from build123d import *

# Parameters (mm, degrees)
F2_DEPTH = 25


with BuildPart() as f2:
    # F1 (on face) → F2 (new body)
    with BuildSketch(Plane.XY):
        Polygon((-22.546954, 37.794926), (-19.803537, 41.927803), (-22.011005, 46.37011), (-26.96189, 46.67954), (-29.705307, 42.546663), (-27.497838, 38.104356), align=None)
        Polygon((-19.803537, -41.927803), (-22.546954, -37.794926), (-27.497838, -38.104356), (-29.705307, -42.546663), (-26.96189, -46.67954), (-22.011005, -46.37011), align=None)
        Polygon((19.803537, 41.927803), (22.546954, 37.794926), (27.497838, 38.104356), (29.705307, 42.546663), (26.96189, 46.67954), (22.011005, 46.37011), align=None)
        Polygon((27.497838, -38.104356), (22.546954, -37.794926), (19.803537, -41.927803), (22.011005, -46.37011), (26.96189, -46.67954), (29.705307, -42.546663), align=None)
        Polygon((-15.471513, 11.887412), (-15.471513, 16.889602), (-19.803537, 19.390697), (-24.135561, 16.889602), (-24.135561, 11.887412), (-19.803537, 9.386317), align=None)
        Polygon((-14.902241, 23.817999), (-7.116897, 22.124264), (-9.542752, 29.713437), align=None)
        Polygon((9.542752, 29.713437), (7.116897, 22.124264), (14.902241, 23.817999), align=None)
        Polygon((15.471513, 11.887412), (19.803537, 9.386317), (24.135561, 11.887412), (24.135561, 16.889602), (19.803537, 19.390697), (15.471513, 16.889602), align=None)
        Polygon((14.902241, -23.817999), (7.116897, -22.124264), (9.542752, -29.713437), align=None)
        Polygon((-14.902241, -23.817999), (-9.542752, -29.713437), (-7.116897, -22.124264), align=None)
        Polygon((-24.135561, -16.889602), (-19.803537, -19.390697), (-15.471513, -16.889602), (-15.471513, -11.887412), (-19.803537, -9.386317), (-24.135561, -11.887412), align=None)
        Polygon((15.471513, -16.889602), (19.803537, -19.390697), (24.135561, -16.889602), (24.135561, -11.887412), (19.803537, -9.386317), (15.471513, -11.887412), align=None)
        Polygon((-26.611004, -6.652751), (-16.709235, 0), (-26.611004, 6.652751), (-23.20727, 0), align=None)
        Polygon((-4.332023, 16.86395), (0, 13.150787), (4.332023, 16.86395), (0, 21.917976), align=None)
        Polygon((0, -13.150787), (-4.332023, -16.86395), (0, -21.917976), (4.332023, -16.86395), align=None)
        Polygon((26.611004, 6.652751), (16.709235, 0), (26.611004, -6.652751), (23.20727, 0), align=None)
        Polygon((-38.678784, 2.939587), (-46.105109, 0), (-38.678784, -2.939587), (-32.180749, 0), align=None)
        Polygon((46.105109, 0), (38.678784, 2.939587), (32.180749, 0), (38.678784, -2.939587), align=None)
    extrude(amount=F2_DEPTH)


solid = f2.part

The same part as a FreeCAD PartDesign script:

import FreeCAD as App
import Part
import Sketcher
from FreeCAD import Vector
Q = App.Units.Quantity


def add_polygon(sketch, points):
    """Adds a closed chain of lines whose ends are joined by coincident constraints."""
    first, n = sketch.GeometryCount, len(points)
    for a, b in zip(points, points[1:] + points[:1]):
        sketch.addGeometry(Part.LineSegment(App.Vector(*a, 0), App.Vector(*b, 0)), False)
    for i in range(n):
        sketch.addConstraint(Sketcher.Constraint("Coincident", first + i, 2, first + (i + 1) % n, 1))

doc = App.newDocument("Part")
body = doc.addObject("PartDesign::Body", "Body")
body.AllowCompound = True

sketch1 = body.newObject("Sketcher::SketchObject", "Sketch")
sketch1.AttachmentSupport = (doc.getObject("XY_Plane"), [""])
sketch1.MapMode = "FlatFace"
add_polygon(sketch1, [(-22.5, 37.8), (-19.8, 41.9), (-22, 46.4), (-27, 46.7), (-29.7, 42.5), (-27.5, 38.1)])
add_polygon(sketch1, [(-19.8, -41.9), (-22.5, -37.8), (-27.5, -38.1), (-29.7, -42.5), (-27, -46.7), (-22, -46.4)])
add_polygon(sketch1, [(19.8, 41.9), (22.5, 37.8), (27.5, 38.1), (29.7, 42.5), (27, 46.7), (22, 46.4)])
add_polygon(sketch1, [(27.5, -38.1), (22.5, -37.8), (19.8, -41.9), (22, -46.4), (27, -46.7), (29.7, -42.5)])
add_polygon(sketch1, [(-15.5, 11.9), (-15.5, 16.9), (-19.8, 19.4), (-24.1, 16.9), (-24.1, 11.9), (-19.8, 9.4)])
add_polygon(sketch1, [(-14.9, 23.8), (-7.1, 22.1), (-9.5, 29.7)])
add_polygon(sketch1, [(9.5, 29.7), (7.1, 22.1), (14.9, 23.8)])
add_polygon(sketch1, [(15.5, 11.9), (19.8, 9.4), (24.1, 11.9), (24.1, 16.9), (19.8, 19.4), (15.5, 16.9)])
add_polygon(sketch1, [(14.9, -23.8), (7.1, -22.1), (9.5, -29.7)])
add_polygon(sketch1, [(-14.9, -23.8), (-9.5, -29.7), (-7.1, -22.1)])
add_polygon(sketch1, [(-24.1, -16.9), (-19.8, -19.4), (-15.5, -16.9), (-15.5, -11.9), (-19.8, -9.4), (-24.1, -11.9)])
add_polygon(sketch1, [(15.5, -16.9), (19.8, -19.4), (24.1, -16.9), (24.1, -11.9), (19.8, -9.4), (15.5, -11.9)])
add_polygon(sketch1, [(-26.6, -6.7), (-16.7, 0), (-26.6, 6.7), (-23.2, 0)])
add_polygon(sketch1, [(-4.3, 16.9), (0, 13.2), (4.3, 16.9), (0, 21.9)])
add_polygon(sketch1, [(0, -13.2), (-4.3, -16.9), (0, -21.9), (4.3, -16.9)])
add_polygon(sketch1, [(26.6, 6.7), (16.7, 0), (26.6, -6.7), (23.2, 0)])
add_polygon(sketch1, [(-38.7, 2.9), (-46.1, 0), (-38.7, -2.9), (-32.2, 0)])
add_polygon(sketch1, [(46.1, 0), (38.7, 2.9), (32.2, 0), (38.7, -2.9)])
sketch1.addConstraint(Sketcher.Constraint("Vertical", 24))
sketch1.addConstraint(Sketcher.Constraint("Vertical", 27))
sketch1.addConstraint(Sketcher.Constraint("Vertical", 38))
sketch1.addConstraint(Sketcher.Constraint("Vertical", 41))
sketch1.addConstraint(Sketcher.Constraint("Vertical", 50))
sketch1.addConstraint(Sketcher.Constraint("Vertical", 53))
sketch1.addConstraint(Sketcher.Constraint("Vertical", 56))
sketch1.addConstraint(Sketcher.Constraint("Vertical", 59))
sketch1.addConstraint(Sketcher.Constraint("Symmetric", 6, 2, 12, 2, -1, 1))
sketch1.addConstraint(Sketcher.Constraint("Symmetric", 7, 2, 13, 2, -1, 1))
sketch1.addConstraint(Sketcher.Constraint("Symmetric", 8, 2, 14, 2, -1, 1))
sketch1.addConstraint(Sketcher.Constraint("Symmetric", 9, 2, 15, 2, -1, 1))
sketch1.addConstraint(Sketcher.Constraint("Symmetric", 10, 2, 16, 2, -1, 1))
sketch1.addConstraint(Sketcher.Constraint("Symmetric", 11, 2, 17, 2, -1, 1))
sketch1.addConstraint(Sketcher.Constraint("Symmetric", 5, 2, 18, 2, -1, 1))
sketch1.addConstraint(Sketcher.Constraint("Symmetric", 0, 2, 19, 2, -1, 1))
sketch1.addConstraint(Sketcher.Constraint("Symmetric", 1, 2, 20, 2, -1, 1))
sketch1.addConstraint(Sketcher.Constraint("Symmetric", 2, 2, 21, 2, -1, 1))
sketch1.addConstraint(Sketcher.Constraint("Symmetric", 3, 2, 22, 2, -1, 1))
sketch1.addConstraint(Sketcher.Constraint("Symmetric", 4, 2, 23, 2, -1, 1))
sketch1.addConstraint(Sketcher.Constraint("Symmetric", 30, 2, 42, 2, -1, 1))
sketch1.addConstraint(Sketcher.Constraint("Symmetric", 31, 2, 43, 2, -1, 1))
sketch1.addConstraint(Sketcher.Constraint("Symmetric", 32, 2, 44, 2, -1, 1))
sketch1.addConstraint(Sketcher.Constraint("Symmetric", 35, 2, 45, 2, -1, 1))
sketch1.addConstraint(Sketcher.Constraint("Symmetric", 33, 2, 46, 2, -1, 1))
sketch1.addConstraint(Sketcher.Constraint("Symmetric", 34, 2, 47, 2, -1, 1))
sketch1.addConstraint(Sketcher.Constraint("Symmetric", 39, 2, 48, 2, -1, 1))
sketch1.addConstraint(Sketcher.Constraint("Symmetric", 40, 2, 49, 2, -1, 1))
sketch1.addConstraint(Sketcher.Constraint("Symmetric", 36, 2, 51, 2, -1, 1))
sketch1.addConstraint(Sketcher.Constraint("Symmetric", 37, 2, 52, 2, -1, 1))
sketch1.addConstraint(Sketcher.Constraint("Symmetric", 25, 2, 54, 2, -1, 1))
sketch1.addConstraint(Sketcher.Constraint("Symmetric", 26, 2, 55, 2, -1, 1))
sketch1.addConstraint(Sketcher.Constraint("Symmetric", 28, 2, 57, 2, -1, 1))
sketch1.addConstraint(Sketcher.Constraint("Symmetric", 29, 2, 58, 2, -1, 1))
sketch1.addConstraint(Sketcher.Constraint("Symmetric", 65, 2, 68, 2, -1, 1))
sketch1.addConstraint(Sketcher.Constraint("Symmetric", 66, 2, 69, 2, -1, 1))
sketch1.addConstraint(Sketcher.Constraint("Symmetric", 67, 2, 70, 2, -1, 1))
sketch1.addConstraint(Sketcher.Constraint("Symmetric", 64, 2, 71, 2, -1, 1))
sketch1.addConstraint(Sketcher.Constraint("Symmetric", 60, 2, 72, 2, -1, 1))
sketch1.addConstraint(Sketcher.Constraint("Symmetric", 61, 2, 73, 2, -1, 1))
sketch1.addConstraint(Sketcher.Constraint("Symmetric", 62, 2, 74, 2, -1, 1))
sketch1.addConstraint(Sketcher.Constraint("Symmetric", 63, 2, 75, 2, -1, 1))
sketch1.addConstraint(Sketcher.Constraint("Symmetric", 77, 2, 80, 2, -1, 1))
sketch1.addConstraint(Sketcher.Constraint("Symmetric", 78, 2, 81, 2, -1, 1))
sketch1.addConstraint(Sketcher.Constraint("Symmetric", 79, 2, 82, 2, -1, 1))
sketch1.addConstraint(Sketcher.Constraint("Symmetric", 76, 2, 83, 2, -1, 1))
sketch1.addConstraint(Sketcher.Constraint("Symmetric", 5, 2, 12, 2, -2))
sketch1.addConstraint(Sketcher.Constraint("Symmetric", 4, 2, 13, 2, -2))
sketch1.addConstraint(Sketcher.Constraint("Symmetric", 3, 2, 14, 2, -2))
sketch1.addConstraint(Sketcher.Constraint("Symmetric", 2, 2, 15, 2, -2))
sketch1.addConstraint(Sketcher.Constraint("Symmetric", 1, 2, 16, 2, -2))
sketch1.addConstraint(Sketcher.Constraint("Symmetric", 0, 2, 17, 2, -2))
sketch1.addConstraint(Sketcher.Constraint("Symmetric", 30, 2, 33, 2, -2))
sketch1.addConstraint(Sketcher.Constraint("Symmetric", 32, 2, 34, 2, -2))
sketch1.addConstraint(Sketcher.Constraint("Symmetric", 31, 2, 35, 2, -2))
sketch1.addConstraint(Sketcher.Constraint("Symmetric", 28, 2, 36, 2, -2))
sketch1.addConstraint(Sketcher.Constraint("Symmetric", 27, 2, 37, 2, -2))
sketch1.addConstraint(Sketcher.Constraint("Symmetric", 25, 2, 39, 2, -2))
sketch1.addConstraint(Sketcher.Constraint("Symmetric", 24, 2, 40, 2, -2))
sketch1.addConstraint(Sketcher.Constraint("Symmetric", 65, 2, 67, 2, -2))
sketch1.addConstraint(Sketcher.Constraint("Symmetric", 63, 2, 73, 2, -2))
sketch1.addConstraint(Sketcher.Constraint("Symmetric", 79, 2, 80, 2, -2))
sketch1.addConstraint(Sketcher.Constraint("PointOnObject", 60, 2, -1))
sketch1.addConstraint(Sketcher.Constraint("PointOnObject", 62, 2, -1))
sketch1.addConstraint(Sketcher.Constraint("PointOnObject", 64, 2, -2))
sketch1.addConstraint(Sketcher.Constraint("PointOnObject", 66, 2, -2))
sketch1.addConstraint(Sketcher.Constraint("PointOnObject", 76, 2, -1))
sketch1.addConstraint(Sketcher.Constraint("PointOnObject", 78, 2, -1))
sketch1.addConstraint(Sketcher.Constraint("Parallel", 0, 3))
sketch1.addConstraint(Sketcher.Constraint("Parallel", 1, 4))
sketch1.addConstraint(Sketcher.Constraint("Parallel", 2, 5))
sketch1.addConstraint(Sketcher.Constraint("Parallel", 25, 28))
sketch1.addConstraint(Sketcher.Constraint("Parallel", 26, 29))
sketch1.addConstraint(Sketcher.Constraint("Parallel", 28, 36))
sketch1.addConstraint(Sketcher.Constraint("Parallel", 29, 37))
sketch1.addConstraint(Sketcher.Constraint("Parallel", 36, 39))
sketch1.addConstraint(Sketcher.Constraint("Parallel", 39, 48))
sketch1.addConstraint(Sketcher.Constraint("Parallel", 48, 51))
sketch1.addConstraint(Sketcher.Constraint("Parallel", 51, 54))
sketch1.addConstraint(Sketcher.Constraint("Parallel", 54, 57))
sketch1.addConstraint(Sketcher.Constraint("Perpendicular", 65, 66))
sketch1.addConstraint(Sketcher.Constraint("Horizontal", 24, 2, 26, 2))
sketch1.addConstraint(Sketcher.Constraint("Horizontal", 27, 2, 29, 2))
sketch1.addConstraint(Sketcher.Constraint("Vertical", 11, 2, 25, 2))
sketch1.addConstraint(Sketcher.Constraint("Equal", 0, 1))
sketch1.addConstraint(Sketcher.Constraint("Equal", 1, 2))
sketch1.addConstraint(Sketcher.Constraint("Equal", 2, 3))
sketch1.addConstraint(Sketcher.Constraint("Equal", 30, 31))
sketch1.addConstraint(Sketcher.Constraint("Equal", 31, 32))
sketch1.addConstraint(Sketcher.Constraint("Angle", 25, Q("150.000002 deg")))
sketch1.addConstraint(Sketcher.Constraint("DistanceY", -1, 1, 32, 2, Q("23.817999 mm")))
sketch1.addConstraint(Sketcher.Constraint("DistanceY", 24, 1, 24, 2, Q("5.00219 mm")))
sketch1.addConstraint(Sketcher.Constraint("DistanceY", -1, 1, 24, 2, Q("16.889602 mm")))
sketch1.addConstraint(Sketcher.Constraint("Distance", 25, Q("5.00219 mm")))
sketch1.addConstraint(Sketcher.Constraint("Distance", 60, Q("11.929129 mm")))
sketch1.addConstraint(Sketcher.Constraint("Distance", 64, Q("5.705612 mm")))
sketch1.addConstraint(Sketcher.Constraint("DistanceY", -1, 1, 1, 2, Q("46.37011 mm")))
sketch1.addConstraint(Sketcher.Constraint("DistanceX", 2, 2, -1, 1, Q("26.96189 mm")))
sketch1.addConstraint(Sketcher.Constraint("DistanceY", -1, 1, 2, 2, Q("46.67954 mm")))
sketch1.addConstraint(Sketcher.Constraint("DistanceX", 4, 2, -1, 1, Q("27.497838 mm")))
sketch1.addConstraint(Sketcher.Constraint("DistanceX", 26, 2, -1, 1, Q("24.135561 mm")))
sketch1.addConstraint(Sketcher.Constraint("DistanceX", 32, 2, -1, 1, Q("14.902241 mm")))
sketch1.addConstraint(Sketcher.Constraint("DistanceY", -1, 1, 61, 2, Q("6.652751 mm")))
sketch1.addConstraint(Sketcher.Constraint("DistanceX", 62, 2, -1, 1, Q("23.20727 mm")))
sketch1.addConstraint(Sketcher.Constraint("DistanceY", -1, 1, 65, 2, Q("16.86395 mm")))
sketch1.addConstraint(Sketcher.Constraint("DistanceX", 76, 2, -1, 1, Q("46.105109 mm")))
sketch1.addConstraint(Sketcher.Constraint("DistanceX", 78, 2, -1, 1, Q("32.180749 mm")))
sketch1.addConstraint(Sketcher.Constraint("Distance", 0, Q("4.960545 mm")))
sketch1.addConstraint(Sketcher.Constraint("Distance", 30, Q("7.967454 mm")))
sketch1.addConstraint(Sketcher.Constraint("Distance", 62, Q("7.472918 mm")))
sketch1.addConstraint(Sketcher.Constraint("Distance", 66, Q("6.656546 mm")))
sketch1.addConstraint(Sketcher.Constraint("Distance", 76, Q("7.986957 mm")))
sketch1.addConstraint(Sketcher.Constraint("Distance", 78, Q("7.132014 mm")))
sketch1.addConstraint(Sketcher.Constraint("DistanceX", 30, 2, -1, 1, Q("7.116897 mm")))
pad1 = body.newObject("PartDesign::Pad", "Pad")
pad1.Profile = sketch1
pad1.Length = 25

doc.recompute()
